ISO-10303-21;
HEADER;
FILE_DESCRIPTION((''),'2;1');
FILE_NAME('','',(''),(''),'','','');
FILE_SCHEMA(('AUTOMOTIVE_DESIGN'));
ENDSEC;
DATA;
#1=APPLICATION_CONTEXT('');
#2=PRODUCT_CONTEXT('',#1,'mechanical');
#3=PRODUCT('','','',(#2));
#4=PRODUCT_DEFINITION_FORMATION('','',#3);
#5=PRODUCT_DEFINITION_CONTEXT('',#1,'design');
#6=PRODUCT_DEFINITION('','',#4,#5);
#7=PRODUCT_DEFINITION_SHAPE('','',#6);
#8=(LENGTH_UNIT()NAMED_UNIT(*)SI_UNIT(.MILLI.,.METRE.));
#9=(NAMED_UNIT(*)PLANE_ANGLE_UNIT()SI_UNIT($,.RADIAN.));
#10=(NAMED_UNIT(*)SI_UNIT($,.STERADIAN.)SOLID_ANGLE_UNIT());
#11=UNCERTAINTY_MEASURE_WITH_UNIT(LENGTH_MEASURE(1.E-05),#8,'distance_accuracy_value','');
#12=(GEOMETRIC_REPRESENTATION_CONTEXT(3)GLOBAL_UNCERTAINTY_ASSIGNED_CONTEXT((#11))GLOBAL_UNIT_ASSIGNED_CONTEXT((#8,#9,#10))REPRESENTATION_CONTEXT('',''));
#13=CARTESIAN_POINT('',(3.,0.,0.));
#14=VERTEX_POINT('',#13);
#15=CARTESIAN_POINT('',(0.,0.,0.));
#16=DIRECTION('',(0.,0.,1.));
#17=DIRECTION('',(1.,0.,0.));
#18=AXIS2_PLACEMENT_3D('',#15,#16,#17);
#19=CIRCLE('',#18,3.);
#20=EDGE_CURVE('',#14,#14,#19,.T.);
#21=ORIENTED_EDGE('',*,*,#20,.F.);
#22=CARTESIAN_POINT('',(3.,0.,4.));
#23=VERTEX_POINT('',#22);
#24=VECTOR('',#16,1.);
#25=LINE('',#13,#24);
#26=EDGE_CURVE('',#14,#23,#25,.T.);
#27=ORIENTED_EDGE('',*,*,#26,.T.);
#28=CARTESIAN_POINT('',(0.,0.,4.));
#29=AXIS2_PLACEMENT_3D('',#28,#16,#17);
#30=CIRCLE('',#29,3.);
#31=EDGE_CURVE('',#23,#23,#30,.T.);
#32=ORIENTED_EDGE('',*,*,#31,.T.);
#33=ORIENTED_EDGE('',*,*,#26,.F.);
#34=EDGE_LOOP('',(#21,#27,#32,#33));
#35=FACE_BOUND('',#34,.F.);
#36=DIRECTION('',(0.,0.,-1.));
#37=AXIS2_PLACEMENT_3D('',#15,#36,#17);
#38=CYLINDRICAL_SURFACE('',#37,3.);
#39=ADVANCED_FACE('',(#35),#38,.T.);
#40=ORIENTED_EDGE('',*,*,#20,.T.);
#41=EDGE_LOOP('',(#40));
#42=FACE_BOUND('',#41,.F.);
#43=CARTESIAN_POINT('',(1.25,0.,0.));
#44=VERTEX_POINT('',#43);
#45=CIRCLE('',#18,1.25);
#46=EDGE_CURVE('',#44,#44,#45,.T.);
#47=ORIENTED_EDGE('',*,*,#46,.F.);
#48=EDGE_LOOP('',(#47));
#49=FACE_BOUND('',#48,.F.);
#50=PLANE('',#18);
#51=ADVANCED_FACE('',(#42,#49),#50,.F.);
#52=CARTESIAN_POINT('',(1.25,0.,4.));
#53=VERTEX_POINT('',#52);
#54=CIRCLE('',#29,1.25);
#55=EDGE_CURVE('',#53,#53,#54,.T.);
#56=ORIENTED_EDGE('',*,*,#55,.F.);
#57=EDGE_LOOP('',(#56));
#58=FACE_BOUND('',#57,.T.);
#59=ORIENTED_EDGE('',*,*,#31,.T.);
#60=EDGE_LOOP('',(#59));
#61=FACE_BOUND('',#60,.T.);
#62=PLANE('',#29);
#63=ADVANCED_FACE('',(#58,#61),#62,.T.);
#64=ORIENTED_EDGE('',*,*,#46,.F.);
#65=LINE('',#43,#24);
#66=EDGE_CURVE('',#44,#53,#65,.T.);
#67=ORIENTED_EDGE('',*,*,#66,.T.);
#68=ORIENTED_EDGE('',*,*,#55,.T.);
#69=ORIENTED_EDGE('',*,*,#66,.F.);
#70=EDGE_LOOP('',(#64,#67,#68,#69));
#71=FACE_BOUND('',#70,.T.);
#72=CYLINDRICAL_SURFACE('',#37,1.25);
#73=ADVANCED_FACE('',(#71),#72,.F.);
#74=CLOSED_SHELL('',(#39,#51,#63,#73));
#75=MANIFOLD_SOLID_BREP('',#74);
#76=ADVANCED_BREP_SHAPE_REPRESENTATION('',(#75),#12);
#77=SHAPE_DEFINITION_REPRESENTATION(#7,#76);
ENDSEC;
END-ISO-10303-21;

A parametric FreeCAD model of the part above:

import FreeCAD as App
import Part
import Sketcher

doc = App.newDocument("Part")
body = doc.addObject("PartDesign::Body", "Body")

sketch1 = body.newObject("Sketcher::SketchObject", "Sketch")
sketch1.AttachmentSupport = (doc.getObject("XY_Plane"), [""])
sketch1.MapMode = "FlatFace"
sketch1.addGeometry([
    Part.Circle(App.Vector(0, 0, 0), App.Vector(0, 0, 1), 3),
    Part.Circle(App.Vector(0, 0, 0), App.Vector(0, 0, 1), 1.2),
], False)
sketch1.addConstraint([
    Sketcher.Constraint("Coincident", 0, 3, -1, 1),
    Sketcher.Constraint("Coincident", 1, 3, -1, 1),
    Sketcher.Constraint("Diameter", 0, 6.0),
    Sketcher.Constraint("Diameter", 1, 2.5),
])
pad1 = body.newObject("PartDesign::Pad", "Pad")
pad1.Profile = sketch1
pad1.Length = 4

doc.recompute()
